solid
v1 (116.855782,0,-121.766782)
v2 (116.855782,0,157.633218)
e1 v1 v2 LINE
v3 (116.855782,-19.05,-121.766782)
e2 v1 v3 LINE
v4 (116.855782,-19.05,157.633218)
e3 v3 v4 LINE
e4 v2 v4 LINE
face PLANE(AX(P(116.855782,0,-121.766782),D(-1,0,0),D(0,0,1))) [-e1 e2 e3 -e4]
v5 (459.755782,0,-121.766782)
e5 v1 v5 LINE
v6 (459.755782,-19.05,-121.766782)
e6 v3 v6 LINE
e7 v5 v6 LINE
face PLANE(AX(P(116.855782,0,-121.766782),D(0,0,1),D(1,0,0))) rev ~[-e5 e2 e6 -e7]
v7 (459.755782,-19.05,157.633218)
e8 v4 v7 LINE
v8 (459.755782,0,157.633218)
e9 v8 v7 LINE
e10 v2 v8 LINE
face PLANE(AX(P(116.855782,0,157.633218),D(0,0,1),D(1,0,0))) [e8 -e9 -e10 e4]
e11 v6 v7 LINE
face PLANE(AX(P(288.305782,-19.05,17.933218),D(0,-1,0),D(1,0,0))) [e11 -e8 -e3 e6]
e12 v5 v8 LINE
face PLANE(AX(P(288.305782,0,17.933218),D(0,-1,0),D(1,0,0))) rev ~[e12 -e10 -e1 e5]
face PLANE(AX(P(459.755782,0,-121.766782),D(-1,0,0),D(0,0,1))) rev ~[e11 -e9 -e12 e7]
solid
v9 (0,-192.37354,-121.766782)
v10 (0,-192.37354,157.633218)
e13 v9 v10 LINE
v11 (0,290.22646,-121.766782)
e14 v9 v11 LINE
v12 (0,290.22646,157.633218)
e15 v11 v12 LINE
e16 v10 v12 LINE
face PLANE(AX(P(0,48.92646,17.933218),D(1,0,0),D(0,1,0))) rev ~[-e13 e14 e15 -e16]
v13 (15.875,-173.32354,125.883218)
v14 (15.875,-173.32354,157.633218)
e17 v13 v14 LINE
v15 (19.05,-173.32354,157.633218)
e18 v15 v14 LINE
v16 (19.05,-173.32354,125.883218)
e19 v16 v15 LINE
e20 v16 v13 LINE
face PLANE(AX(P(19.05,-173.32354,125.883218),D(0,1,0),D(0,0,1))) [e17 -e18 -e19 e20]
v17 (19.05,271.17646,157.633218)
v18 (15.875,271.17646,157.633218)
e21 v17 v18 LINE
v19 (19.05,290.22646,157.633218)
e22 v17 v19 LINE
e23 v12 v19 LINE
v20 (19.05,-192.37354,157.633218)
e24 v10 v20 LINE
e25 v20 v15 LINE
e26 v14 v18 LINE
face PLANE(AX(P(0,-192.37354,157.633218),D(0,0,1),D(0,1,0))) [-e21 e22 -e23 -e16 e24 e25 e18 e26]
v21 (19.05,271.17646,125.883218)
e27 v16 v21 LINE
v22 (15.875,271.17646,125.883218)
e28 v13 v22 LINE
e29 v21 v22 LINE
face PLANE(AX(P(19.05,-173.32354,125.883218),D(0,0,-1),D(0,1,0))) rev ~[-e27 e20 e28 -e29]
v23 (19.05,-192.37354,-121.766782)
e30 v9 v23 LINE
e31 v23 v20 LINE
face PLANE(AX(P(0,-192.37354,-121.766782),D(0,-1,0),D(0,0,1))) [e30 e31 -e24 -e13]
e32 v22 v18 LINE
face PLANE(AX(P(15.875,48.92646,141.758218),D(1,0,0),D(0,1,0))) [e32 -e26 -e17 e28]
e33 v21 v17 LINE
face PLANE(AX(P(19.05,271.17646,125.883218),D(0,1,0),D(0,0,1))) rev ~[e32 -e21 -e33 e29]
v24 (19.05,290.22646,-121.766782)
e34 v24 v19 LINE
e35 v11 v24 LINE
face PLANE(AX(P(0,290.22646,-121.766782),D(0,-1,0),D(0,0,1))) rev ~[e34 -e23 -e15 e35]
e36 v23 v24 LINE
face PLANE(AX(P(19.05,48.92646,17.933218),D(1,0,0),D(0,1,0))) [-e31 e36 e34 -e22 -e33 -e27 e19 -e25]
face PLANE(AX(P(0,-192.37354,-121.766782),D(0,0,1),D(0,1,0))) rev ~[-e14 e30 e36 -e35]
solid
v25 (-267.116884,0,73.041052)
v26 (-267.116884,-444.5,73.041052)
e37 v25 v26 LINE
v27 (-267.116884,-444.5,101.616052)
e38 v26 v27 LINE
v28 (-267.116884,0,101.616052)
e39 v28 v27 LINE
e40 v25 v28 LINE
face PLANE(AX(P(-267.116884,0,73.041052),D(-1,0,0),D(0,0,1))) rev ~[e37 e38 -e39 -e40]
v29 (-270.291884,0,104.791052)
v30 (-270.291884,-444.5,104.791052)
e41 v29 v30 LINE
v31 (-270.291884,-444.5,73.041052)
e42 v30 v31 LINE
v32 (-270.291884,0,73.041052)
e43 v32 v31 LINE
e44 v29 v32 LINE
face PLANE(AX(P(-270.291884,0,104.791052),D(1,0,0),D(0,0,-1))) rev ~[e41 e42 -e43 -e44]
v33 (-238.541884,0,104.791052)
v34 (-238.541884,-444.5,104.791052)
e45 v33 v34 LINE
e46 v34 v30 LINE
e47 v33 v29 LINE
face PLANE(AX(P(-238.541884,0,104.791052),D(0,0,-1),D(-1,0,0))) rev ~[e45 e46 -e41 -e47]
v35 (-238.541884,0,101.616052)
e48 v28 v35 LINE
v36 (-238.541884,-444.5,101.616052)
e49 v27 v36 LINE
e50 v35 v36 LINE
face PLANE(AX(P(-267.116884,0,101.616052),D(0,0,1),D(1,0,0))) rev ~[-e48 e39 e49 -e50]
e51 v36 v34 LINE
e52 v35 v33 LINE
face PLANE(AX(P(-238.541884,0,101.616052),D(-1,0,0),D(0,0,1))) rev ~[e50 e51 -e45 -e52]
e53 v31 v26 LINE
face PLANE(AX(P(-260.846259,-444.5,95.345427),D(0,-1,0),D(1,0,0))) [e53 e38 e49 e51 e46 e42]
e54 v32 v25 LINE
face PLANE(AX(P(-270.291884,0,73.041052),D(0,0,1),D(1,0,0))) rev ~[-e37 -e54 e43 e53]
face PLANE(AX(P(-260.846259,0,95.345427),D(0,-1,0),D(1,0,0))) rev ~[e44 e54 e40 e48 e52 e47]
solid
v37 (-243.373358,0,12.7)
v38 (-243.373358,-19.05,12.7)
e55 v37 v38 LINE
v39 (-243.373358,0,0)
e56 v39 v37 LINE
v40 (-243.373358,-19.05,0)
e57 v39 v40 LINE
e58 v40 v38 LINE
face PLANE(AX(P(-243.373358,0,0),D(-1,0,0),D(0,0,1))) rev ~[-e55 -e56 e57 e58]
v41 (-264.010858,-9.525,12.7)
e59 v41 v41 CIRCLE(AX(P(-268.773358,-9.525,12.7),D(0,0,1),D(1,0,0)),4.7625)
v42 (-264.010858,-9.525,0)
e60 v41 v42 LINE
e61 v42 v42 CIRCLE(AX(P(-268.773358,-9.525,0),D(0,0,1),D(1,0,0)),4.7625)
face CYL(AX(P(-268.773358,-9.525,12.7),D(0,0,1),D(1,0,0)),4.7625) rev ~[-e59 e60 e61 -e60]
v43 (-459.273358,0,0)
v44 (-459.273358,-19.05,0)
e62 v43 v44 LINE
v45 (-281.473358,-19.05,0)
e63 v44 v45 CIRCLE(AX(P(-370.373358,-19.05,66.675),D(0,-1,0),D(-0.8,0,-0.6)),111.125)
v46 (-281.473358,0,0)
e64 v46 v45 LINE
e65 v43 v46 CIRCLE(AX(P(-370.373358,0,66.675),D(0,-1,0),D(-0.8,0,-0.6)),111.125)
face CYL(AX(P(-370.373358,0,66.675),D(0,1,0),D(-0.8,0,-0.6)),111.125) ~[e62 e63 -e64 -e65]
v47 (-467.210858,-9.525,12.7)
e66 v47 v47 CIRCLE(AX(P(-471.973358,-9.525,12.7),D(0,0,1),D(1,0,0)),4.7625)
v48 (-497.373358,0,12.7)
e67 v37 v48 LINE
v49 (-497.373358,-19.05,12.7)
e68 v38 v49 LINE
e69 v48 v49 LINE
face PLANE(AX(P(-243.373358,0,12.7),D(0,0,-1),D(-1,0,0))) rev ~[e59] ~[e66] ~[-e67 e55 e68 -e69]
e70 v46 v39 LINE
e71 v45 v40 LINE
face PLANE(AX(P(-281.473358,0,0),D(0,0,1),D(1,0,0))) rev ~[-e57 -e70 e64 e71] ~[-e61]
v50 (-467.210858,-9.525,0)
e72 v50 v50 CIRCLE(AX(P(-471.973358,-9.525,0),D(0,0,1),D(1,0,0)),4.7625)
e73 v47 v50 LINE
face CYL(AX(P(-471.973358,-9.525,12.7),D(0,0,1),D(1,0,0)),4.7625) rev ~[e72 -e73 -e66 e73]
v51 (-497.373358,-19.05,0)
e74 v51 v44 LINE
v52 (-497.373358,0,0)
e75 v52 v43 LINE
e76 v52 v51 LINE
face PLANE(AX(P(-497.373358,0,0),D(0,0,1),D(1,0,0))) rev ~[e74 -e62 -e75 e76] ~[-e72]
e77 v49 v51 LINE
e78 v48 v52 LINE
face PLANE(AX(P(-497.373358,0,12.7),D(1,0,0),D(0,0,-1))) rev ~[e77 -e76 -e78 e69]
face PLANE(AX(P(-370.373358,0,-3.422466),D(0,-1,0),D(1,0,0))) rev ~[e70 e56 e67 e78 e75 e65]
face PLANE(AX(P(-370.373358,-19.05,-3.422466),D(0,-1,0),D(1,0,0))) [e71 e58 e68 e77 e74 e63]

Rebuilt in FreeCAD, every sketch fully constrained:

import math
import FreeCAD as App
import Part
import Sketcher
from FreeCAD import Vector
Q = App.Units.Quantity

doc = App.newDocument("Part")
body = doc.addObject("PartDesign::Body", "Body")

sketch1 = body.newObject("Sketcher::SketchObject", "Sketch")
sketch1.AttachmentSupport = (doc.getObject("YZ_Plane"), [""])
sketch1.MapMode = "FlatFace"
sketch1.addGeometry(Part.LineSegment(Vector(-192.37354, 157.633218, 0), Vector(-192.37354, -121.766782, 0)), False)
sketch1.addGeometry(Part.LineSegment(Vector(-192.37354, -121.766782, 0), Vector(290.22646, -121.766782, 0)), False)
sketch1.addGeometry(Part.LineSegment(Vector(290.22646, -121.766782, 0), Vector(290.22646, 157.633218, 0)), False)
sketch1.addGeometry(Part.LineSegment(Vector(290.22646, 157.633218, 0), Vector(-192.37354, 157.633218, 0)), False)
sketch1.addConstraint(Sketcher.Constraint("Coincident", 0, 2, 1, 1))
sketch1.addConstraint(Sketcher.Constraint("Coincident", 1, 2, 2, 1))
sketch1.addConstraint(Sketcher.Constraint("Coincident", 2, 2, 3, 1))
sketch1.addConstraint(Sketcher.Constraint("Coincident", 3, 2, 0, 1))
sketch1.addConstraint(Sketcher.Constraint("Vertical", 0))
sketch1.addConstraint(Sketcher.Constraint("Horizontal", 1))
sketch1.addConstraint(Sketcher.Constraint("Vertical", 2))
sketch1.addConstraint(Sketcher.Constraint("Horizontal", 3))
sketch1.addConstraint(Sketcher.Constraint("DistanceX", 1, 1, 1, 2, Q("19 in")))
sketch1.addConstraint(Sketcher.Constraint("DistanceY", 0, 2, 0, 1, Q("11 in")))
sketch1.addConstraint(Sketcher.Constraint("DistanceX", 0, 2, -1, 1, Q("192.37354 mm")))
sketch1.addConstraint(Sketcher.Constraint("DistanceY", -1, 1, 2, 2, Q("157.633218 mm")))
pad1 = body.newObject("PartDesign::Pad", "Pad")
pad1.Profile = sketch1
pad1.Length = Q("0.75 in")

sketch2 = body.newObject("Sketcher::SketchObject", "Sketch001")
sketch2.AttachmentSupport = (doc.getObject("YZ_Plane"), [""])
sketch2.MapMode = "FlatFace"
sketch2.AttachmentOffset = App.Placement(Vector(0, 0, 0.75 * 25.4), App.Rotation())
sketch2.addGeometry(Part.LineSegment(Vector(-173.32354, 157.633218, 0), Vector(-173.32354, 125.883218, 0)), False)
sketch2.addGeometry(Part.LineSegment(Vector(-173.32354, 125.883218, 0), Vector(271.17646, 125.883218, 0)), False)
sketch2.addGeometry(Part.LineSegment(Vector(271.17646, 125.883218, 0), Vector(271.17646, 157.633218, 0)), False)
sketch2.addGeometry(Part.LineSegment(Vector(271.17646, 157.633218, 0), Vector(-173.32354, 157.633218, 0)), False)
sketch2.addConstraint(Sketcher.Constraint("Coincident", 0, 2, 1, 1))
sketch2.addConstraint(Sketcher.Constraint("Coincident", 1, 2, 2, 1))
sketch2.addConstraint(Sketcher.Constraint("Coincident", 2, 2, 3, 1))
sketch2.addConstraint(Sketcher.Constraint("Coincident", 3, 2, 0, 1))
sketch2.addConstraint(Sketcher.Constraint("Vertical", 0))
sketch2.addConstraint(Sketcher.Constraint("Horizontal", 1))
sketch2.addConstraint(Sketcher.Constraint("Vertical", 2))
sketch2.addConstraint(Sketcher.Constraint("Horizontal", 3))
sketch2.addConstraint(Sketcher.Constraint("DistanceX", 1, 1, 1, 2, Q("17.5 in")))
sketch2.addConstraint(Sketcher.Constraint("DistanceY", 0, 2, 0, 1, Q("1.25 in")))
sketch2.addConstraint(Sketcher.Constraint("DistanceX", 0, 2, -1, 1, Q("173.32354 mm")))
sketch2.addConstraint(Sketcher.Constraint("DistanceY", -1, 1, 0, 2, Q("125.883218 mm")))
pocket1 = body.newObject("PartDesign::Pocket", "Pocket")
pocket1.Profile = sketch2
pocket1.Length = Q("0.125 in")
body2 = doc.addObject("PartDesign::Body", "Body001")

sketch3 = body2.newObject("Sketcher::SketchObject", "Sketch002")
sketch3.AttachmentSupport = (doc.getObject("XZ_Plane001"), [""])
sketch3.MapMode = "FlatFace"
sketch3.addGeometry(Part.LineSegment(Vector(116.855782, 157.633218, 0), Vector(116.855782, -121.766782, 0)), False)
sketch3.addGeometry(Part.LineSegment(Vector(116.855782, -121.766782, 0), Vector(459.755782, -121.766782, 0)), False)
sketch3.addGeometry(Part.LineSegment(Vector(459.755782, -121.766782, 0), Vector(459.755782, 157.633218, 0)), False)
sketch3.addGeometry(Part.LineSegment(Vector(459.755782, 157.633218, 0), Vector(116.855782, 157.633218, 0)), False)
sketch3.addConstraint(Sketcher.Constraint("Coincident", 0, 2, 1, 1))
sketch3.addConstraint(Sketcher.Constraint("Coincident", 1, 2, 2, 1))
sketch3.addConstraint(Sketcher.Constraint("Coincident", 2, 2, 3, 1))
sketch3.addConstraint(Sketcher.Constraint("Coincident", 3, 2, 0, 1))
sketch3.addConstraint(Sketcher.Constraint("Vertical", 0))
sketch3.addConstraint(Sketcher.Constraint("Horizontal", 1))
sketch3.addConstraint(Sketcher.Constraint("Vertical", 2))
sketch3.addConstraint(Sketcher.Constraint("Horizontal", 3))
sketch3.addConstraint(Sketcher.Constraint("DistanceY", 0, 2, 0, 1, Q("11 in")))
sketch3.addConstraint(Sketcher.Constraint("DistanceX", 1, 1, 1, 2, Q("13.5 in")))
sketch3.addConstraint(Sketcher.Constraint("DistanceX", -1, 1, 1, 2, Q("459.755782 mm")))
sketch3.addConstraint(Sketcher.Constraint("DistanceY", -1, 1, 2, 2, Q("157.633218 mm")))
pad2 = body2.newObject("PartDesign::Pad", "Pad001")
pad2.Profile = sketch3
pad2.Length = Q("0.75 in")
body3 = doc.addObject("PartDesign::Body", "Body002")

sketch4 = body3.newObject("Sketcher::SketchObject", "Sketch003")
sketch4.AttachmentSupport = (doc.getObject("XZ_Plane002"), [""])
sketch4.MapMode = "FlatFace"
sketch4.addGeometry(Part.LineSegment(Vector(-270.291884, 73.041052, 0), Vector(-267.116884, 73.041052, 0)), False)
sketch4.addGeometry(Part.LineSegment(Vector(-267.116884, 73.041052, 0), Vector(-267.116884, 101.616052, 0)), False)
sketch4.addGeometry(Part.LineSegment(Vector(-267.116884, 101.616052, 0), Vector(-238.541884, 101.616052, 0)), False)
sketch4.addGeometry(Part.LineSegment(Vector(-238.541884, 101.616052, 0), Vector(-238.541884, 104.791052, 0)), False)
sketch4.addGeometry(Part.LineSegment(Vector(-238.541884, 104.791052, 0), Vector(-270.291884, 104.791052, 0)), False)
sketch4.addGeometry(Part.LineSegment(Vector(-270.291884, 104.791052, 0), Vector(-270.291884, 73.041052, 0)), False)
sketch4.addConstraint(Sketcher.Constraint("Coincident", 0, 2, 1, 1))
sketch4.addConstraint(Sketcher.Constraint("Coincident", 1, 2, 2, 1))
sketch4.addConstraint(Sketcher.Constraint("Coincident", 2, 2, 3, 1))
sketch4.addConstraint(Sketcher.Constraint("Coincident", 3, 2, 4, 1))
sketch4.addConstraint(Sketcher.Constraint("Coincident", 4, 2, 5, 1))
sketch4.addConstraint(Sketcher.Constraint("Coincident", 5, 2, 0, 1))
sketch4.addConstraint(Sketcher.Constraint("Horizontal", 0))
sketch4.addConstraint(Sketcher.Constraint("Vertical", 1))
sketch4.addConstraint(Sketcher.Constraint("Horizontal", 2))
sketch4.addConstraint(Sketcher.Constraint("Vertical", 3))
sketch4.addConstraint(Sketcher.Constraint("Horizontal", 4))
sketch4.addConstraint(Sketcher.Constraint("Vertical", 5))
sketch4.addConstraint(Sketcher.Constraint("Equal", 2, 1))
sketch4.addConstraint(Sketcher.Constraint("Equal", 0, 3))
sketch4.addConstraint(Sketcher.Constraint("DistanceX", 4, 2, 4, 1, Q("1.25 in")))
sketch4.addConstraint(Sketcher.Constraint("DistanceX", 0, 1, 0, 2, Q("0.125 in")))
sketch4.addConstraint(Sketcher.Constraint("DistanceY", -1, 1, 0, 2, Q("73.041052 mm")))
sketch4.addConstraint(Sketcher.Constraint("DistanceX", 0, 2, -1, 1, Q("267.116884 mm")))
pad3 = body3.newObject("PartDesign::Pad", "Pad002")
pad3.Profile = sketch4
pad3.Length = Q("17.5 in")
body4 = doc.addObject("PartDesign::Body", "Body003")

sketch5 = body4.newObject("Sketcher::SketchObject", "Sketch004")
sketch5.AttachmentSupport = (doc.getObject("XZ_Plane003"), [""])
sketch5.MapMode = "FlatFace"
sketch5.addGeometry(Part.LineSegment(Vector(-243.373358, 12.7, 0), Vector(-497.373358, 12.7, 0)), False)
sketch5.addGeometry(Part.LineSegment(Vector(-497.373358, 12.7, 0), Vector(-497.373358, 0, 0)), False)
sketch5.addGeometry(Part.LineSegment(Vector(-497.373358, 0, 0), Vector(-459.273358, 0, 0)), False)
sketch5.addGeometry(Part.ArcOfCircle(Part.Circle(Vector(-370.373358, 66.675, 0), Vector(0, 0, 1), 111.125), math.radians(-143.130102), math.radians(-36.869898)), False)
sketch5.addGeometry(Part.LineSegment(Vector(-281.473358, 0, 0), Vector(-243.373358, 0, 0)), False)
sketch5.addGeometry(Part.LineSegment(Vector(-243.373358, 0, 0), Vector(-243.373358, 12.7, 0)), False)
sketch5.addConstraint(Sketcher.Constraint("Coincident", 0, 2, 1, 1))
sketch5.addConstraint(Sketcher.Constraint("Coincident", 1, 2, 2, 1))
sketch5.addConstraint(Sketcher.Constraint("Coincident", 2, 2, 3, 1))
sketch5.addConstraint(Sketcher.Constraint("Coincident", 3, 2, 4, 1))
sketch5.addConstraint(Sketcher.Constraint("Coincident", 4, 2, 5, 1))
sketch5.addConstraint(Sketcher.Constraint("Coincident", 5, 2, 0, 1))
sketch5.addConstraint(Sketcher.Constraint("Horizontal", 0))
sketch5.addConstraint(Sketcher.Constraint("Vertical", 1))
sketch5.addConstraint(Sketcher.Constraint("Horizontal", 2))
sketch5.addConstraint(Sketcher.Constraint("Horizontal", 4))
sketch5.addConstraint(Sketcher.Constraint("Vertical", 5))
sketch5.addConstraint(Sketcher.Constraint("PointOnObject", 1, 2, -1))
sketch5.addConstraint(Sketcher.Constraint("PointOnObject", 3, 2, -1))
sketch5.addConstraint(Sketcher.Constraint("Equal", 2, 4))
sketch5.addConstraint(Sketcher.Constraint("DistanceX", 0, 2, 0, 1, Q("10 in")))
sketch5.addConstraint(Sketcher.Constraint("DistanceX", 2, 1, 2, 2, Q("1.5 in")))
sketch5.addConstraint(Sketcher.Constraint("DistanceY", 1, 2, 1, 1, Q("0.5 in")))
sketch5.addConstraint(Sketcher.Constraint("Radius", 3, Q("4.375 in")))
sketch5.addConstraint(Sketcher.Constraint("DistanceX", 3, 3, -1, 1, Q("370.373358 mm")))
pad4 = body4.newObject("PartDesign::Pad", "Pad003")
pad4.Profile = sketch5
pad4.Length = Q("0.75 in")

sketch6 = body4.newObject("Sketcher::SketchObject", "Sketch005")
sketch6.AttachmentSupport = (doc.getObject("XY_Plane003"), [""])
sketch6.MapMode = "FlatFace"
sketch6.AttachmentOffset = App.Placement(Vector(0, 0, 0.5 * 25.4), App.Rotation())
sketch6.addGeometry(Part.Circle(Vector(-471.973358, -9.525, 0), Vector(0, 0, 1), 4.7625), False)
sketch6.addGeometry(Part.Circle(Vector(-268.773358, -9.525, 0), Vector(0, 0, 1), 4.7625), False)
sketch6.addConstraint(Sketcher.Constraint("Equal", 0, 1))
sketch6.addConstraint(Sketcher.Constraint("Horizontal", 0, 3, 1, 3))
sketch6.addConstraint(Sketcher.Constraint("Diameter", 0, Q("0.375 in")))
sketch6.addConstraint(Sketcher.Constraint("DistanceX", 0, 3, 1, 3, Q("8 in")))
sketch6.addConstraint(Sketcher.Constraint("DistanceY", 0, 3, -1, 1, Q("0.375 in")))
sketch6.addConstraint(Sketcher.Constraint("DistanceX", 0, 3, -1, 1, Q("471.973358 mm")))
pocket2 = body4.newObject("PartDesign::Pocket", "Pocket001")
pocket2.Profile = sketch6
pocket2.Type = "ThroughAll"

doc.recompute()
